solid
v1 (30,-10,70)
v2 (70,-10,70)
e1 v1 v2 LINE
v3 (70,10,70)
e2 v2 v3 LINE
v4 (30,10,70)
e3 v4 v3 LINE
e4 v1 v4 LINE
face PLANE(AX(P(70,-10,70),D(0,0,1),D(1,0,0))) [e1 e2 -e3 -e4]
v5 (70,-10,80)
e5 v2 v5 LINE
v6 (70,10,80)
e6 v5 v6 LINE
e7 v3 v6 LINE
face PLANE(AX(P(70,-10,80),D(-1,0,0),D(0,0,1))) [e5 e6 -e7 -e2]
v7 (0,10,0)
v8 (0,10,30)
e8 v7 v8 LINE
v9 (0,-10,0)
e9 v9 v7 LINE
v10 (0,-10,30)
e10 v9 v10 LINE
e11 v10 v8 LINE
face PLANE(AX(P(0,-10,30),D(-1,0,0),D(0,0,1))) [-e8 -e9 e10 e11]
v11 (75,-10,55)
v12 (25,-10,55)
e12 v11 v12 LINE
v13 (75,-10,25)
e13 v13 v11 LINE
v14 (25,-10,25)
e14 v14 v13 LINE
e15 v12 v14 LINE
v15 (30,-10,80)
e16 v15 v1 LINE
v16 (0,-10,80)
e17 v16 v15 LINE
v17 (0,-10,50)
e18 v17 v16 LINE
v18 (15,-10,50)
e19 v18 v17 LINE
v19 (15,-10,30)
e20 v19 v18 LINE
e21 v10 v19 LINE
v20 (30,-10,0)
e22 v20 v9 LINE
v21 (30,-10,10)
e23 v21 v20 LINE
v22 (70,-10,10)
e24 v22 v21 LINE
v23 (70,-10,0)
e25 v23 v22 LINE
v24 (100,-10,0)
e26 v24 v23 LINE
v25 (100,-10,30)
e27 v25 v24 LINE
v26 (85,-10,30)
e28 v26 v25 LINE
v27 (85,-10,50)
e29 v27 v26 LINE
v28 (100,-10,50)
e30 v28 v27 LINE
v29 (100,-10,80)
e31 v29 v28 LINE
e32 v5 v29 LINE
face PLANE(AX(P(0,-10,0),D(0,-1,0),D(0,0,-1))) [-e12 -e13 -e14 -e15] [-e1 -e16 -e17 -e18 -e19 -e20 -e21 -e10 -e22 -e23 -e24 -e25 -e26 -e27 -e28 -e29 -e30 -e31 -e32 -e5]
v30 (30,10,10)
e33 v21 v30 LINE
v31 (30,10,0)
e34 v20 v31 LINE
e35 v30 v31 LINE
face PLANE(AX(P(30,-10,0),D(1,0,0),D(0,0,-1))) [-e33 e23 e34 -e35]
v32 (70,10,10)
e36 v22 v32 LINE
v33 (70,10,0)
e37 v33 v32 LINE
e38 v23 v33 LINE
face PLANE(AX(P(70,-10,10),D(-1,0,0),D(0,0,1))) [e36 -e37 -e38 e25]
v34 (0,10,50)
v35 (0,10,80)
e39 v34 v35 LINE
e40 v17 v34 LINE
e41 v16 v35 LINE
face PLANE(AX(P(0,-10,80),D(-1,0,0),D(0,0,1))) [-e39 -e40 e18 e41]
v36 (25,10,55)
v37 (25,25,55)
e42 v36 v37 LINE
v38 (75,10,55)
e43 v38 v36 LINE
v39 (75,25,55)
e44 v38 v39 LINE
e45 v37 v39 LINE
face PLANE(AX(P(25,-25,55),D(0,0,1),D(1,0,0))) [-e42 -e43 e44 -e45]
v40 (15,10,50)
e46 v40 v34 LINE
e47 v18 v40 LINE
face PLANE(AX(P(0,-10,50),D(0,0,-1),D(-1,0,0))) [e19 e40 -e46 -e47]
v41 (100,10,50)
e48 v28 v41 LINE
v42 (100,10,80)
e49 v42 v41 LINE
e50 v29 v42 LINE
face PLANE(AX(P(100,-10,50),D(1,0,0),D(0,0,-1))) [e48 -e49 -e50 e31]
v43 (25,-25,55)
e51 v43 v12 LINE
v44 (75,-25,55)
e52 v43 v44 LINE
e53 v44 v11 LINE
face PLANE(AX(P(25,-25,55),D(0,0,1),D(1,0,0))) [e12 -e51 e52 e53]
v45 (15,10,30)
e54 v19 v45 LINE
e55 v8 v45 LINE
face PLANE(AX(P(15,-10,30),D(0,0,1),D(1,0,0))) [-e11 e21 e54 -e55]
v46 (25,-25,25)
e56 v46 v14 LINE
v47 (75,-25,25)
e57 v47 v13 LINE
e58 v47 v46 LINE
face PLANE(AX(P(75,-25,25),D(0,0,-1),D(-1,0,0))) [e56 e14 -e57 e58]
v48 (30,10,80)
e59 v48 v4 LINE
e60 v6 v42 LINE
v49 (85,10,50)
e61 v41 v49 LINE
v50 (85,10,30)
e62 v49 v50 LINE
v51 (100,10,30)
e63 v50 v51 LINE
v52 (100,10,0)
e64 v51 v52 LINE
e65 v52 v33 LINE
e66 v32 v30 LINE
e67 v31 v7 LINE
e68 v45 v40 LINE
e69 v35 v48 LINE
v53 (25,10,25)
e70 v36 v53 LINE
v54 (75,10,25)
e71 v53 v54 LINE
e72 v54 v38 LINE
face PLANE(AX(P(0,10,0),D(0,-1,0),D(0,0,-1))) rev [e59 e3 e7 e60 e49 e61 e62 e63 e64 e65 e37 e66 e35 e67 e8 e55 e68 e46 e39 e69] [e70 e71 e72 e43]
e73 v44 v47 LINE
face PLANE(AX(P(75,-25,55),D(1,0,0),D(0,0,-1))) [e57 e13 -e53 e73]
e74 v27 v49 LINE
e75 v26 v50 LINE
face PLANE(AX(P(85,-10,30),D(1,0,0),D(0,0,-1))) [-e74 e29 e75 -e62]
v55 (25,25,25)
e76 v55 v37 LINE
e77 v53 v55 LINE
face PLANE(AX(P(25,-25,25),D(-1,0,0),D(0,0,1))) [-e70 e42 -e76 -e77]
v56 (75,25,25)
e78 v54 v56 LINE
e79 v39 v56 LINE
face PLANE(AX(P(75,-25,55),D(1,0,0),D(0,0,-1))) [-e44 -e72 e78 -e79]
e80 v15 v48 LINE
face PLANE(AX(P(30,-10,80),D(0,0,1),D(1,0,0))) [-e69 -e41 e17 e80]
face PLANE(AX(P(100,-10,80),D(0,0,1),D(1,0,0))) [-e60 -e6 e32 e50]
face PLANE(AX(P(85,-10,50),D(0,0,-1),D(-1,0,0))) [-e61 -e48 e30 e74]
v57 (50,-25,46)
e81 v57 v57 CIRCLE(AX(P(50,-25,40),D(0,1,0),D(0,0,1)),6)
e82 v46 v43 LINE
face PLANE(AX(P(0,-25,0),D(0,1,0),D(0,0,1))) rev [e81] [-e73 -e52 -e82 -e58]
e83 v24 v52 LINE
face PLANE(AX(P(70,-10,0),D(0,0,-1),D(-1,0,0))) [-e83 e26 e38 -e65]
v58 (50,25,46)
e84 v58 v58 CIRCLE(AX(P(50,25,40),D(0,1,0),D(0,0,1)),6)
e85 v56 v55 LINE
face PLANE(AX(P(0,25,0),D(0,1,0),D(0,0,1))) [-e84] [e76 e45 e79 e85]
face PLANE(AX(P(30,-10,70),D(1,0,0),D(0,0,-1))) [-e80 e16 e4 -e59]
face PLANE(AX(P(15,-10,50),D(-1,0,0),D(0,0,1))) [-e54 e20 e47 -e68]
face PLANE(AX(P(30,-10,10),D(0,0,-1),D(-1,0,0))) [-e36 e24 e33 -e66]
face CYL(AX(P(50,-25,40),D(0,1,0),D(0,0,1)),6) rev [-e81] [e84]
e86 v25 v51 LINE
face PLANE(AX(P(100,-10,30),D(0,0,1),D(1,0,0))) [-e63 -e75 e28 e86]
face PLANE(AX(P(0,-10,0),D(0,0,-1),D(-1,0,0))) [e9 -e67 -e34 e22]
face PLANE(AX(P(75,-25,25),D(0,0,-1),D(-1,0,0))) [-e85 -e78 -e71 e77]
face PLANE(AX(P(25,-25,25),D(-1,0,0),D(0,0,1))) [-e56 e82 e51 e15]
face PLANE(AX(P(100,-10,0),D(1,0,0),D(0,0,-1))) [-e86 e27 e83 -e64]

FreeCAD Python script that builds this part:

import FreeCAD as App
import Part
import Sketcher

V = App.Vector

doc = App.newDocument("Part")
body = doc.addObject("PartDesign::Body", "Body")

# Sketch on XZ plane
sketch1 = doc.addObject("Sketcher::SketchObject", "Sketch")
body.addObject(sketch1)
sketch1.AttachmentSupport = (doc.XZ_Plane, [""])
sketch1.MapMode = "FlatFace"
sketch1.addGeometry([
    Part.LineSegment(V(30, 0, 0), V(0, 0, 0)),  # 0
    Part.LineSegment(V(0, 0, 0), V(0, 30, 0)),  # 1
    Part.LineSegment(V(0, 30, 0), V(15, 30, 0)),  # 2
    Part.LineSegment(V(15, 30, 0), V(15, 50, 0)),  # 3
    Part.LineSegment(V(15, 50, 0), V(0, 50, 0)),  # 4
    Part.LineSegment(V(0, 50, 0), V(0, 80, 0)),  # 5
    Part.LineSegment(V(0, 80, 0), V(30, 80, 0)),  # 6
    Part.LineSegment(V(30, 80, 0), V(30, 70, 0)),  # 7
    Part.LineSegment(V(30, 70, 0), V(70, 70, 0)),  # 8
    Part.LineSegment(V(70, 70, 0), V(70, 80, 0)),  # 9
    Part.LineSegment(V(70, 80, 0), V(100, 80, 0)),  # 10
    Part.LineSegment(V(100, 80, 0), V(100, 50, 0)),  # 11
    Part.LineSegment(V(100, 50, 0), V(85, 50, 0)),  # 12
    Part.LineSegment(V(85, 50, 0), V(85, 30, 0)),  # 13
    Part.LineSegment(V(85, 30, 0), V(100, 30, 0)),  # 14
    Part.LineSegment(V(100, 30, 0), V(100, 0, 0)),  # 15
    Part.LineSegment(V(100, 0, 0), V(70, 0, 0)),  # 16
    Part.LineSegment(V(70, 0, 0), V(70, 10, 0)),  # 17
    Part.LineSegment(V(70, 10, 0), V(30, 10, 0)),  # 18
    Part.LineSegment(V(30, 10, 0), V(30, 0, 0)),  # 19
], False)
sketch1.addConstraint([
    Sketcher.Constraint("Coincident", 0, 2, 1, 1),
    Sketcher.Constraint("Coincident", 1, 2, 2, 1),
    Sketcher.Constraint("Coincident", 2, 2, 3, 1),
    Sketcher.Constraint("Coincident", 3, 2, 4, 1),
    Sketcher.Constraint("Coincident", 4, 2, 5, 1),
    Sketcher.Constraint("Coincident", 5, 2, 6, 1),
    Sketcher.Constraint("Coincident", 6, 2, 7, 1),
    Sketcher.Constraint("Coincident", 7, 2, 8, 1),
    Sketcher.Constraint("Coincident", 8, 2, 9, 1),
    Sketcher.Constraint("Coincident", 9, 2, 10, 1),
    Sketcher.Constraint("Coincident", 10, 2, 11, 1),
    Sketcher.Constraint("Coincident", 11, 2, 12, 1),
    Sketcher.Constraint("Coincident", 12, 2, 13, 1),
    Sketcher.Constraint("Coincident", 13, 2, 14, 1),
    Sketcher.Constraint("Coincident", 14, 2, 15, 1),
    Sketcher.Constraint("Coincident", 15, 2, 16, 1),
    Sketcher.Constraint("Coincident", 16, 2, 17, 1),
    Sketcher.Constraint("Coincident", 17, 2, 18, 1),
    Sketcher.Constraint("Coincident", 18, 2, 19, 1),
    Sketcher.Constraint("Coincident", 19, 2, 0, 1),
    Sketcher.Constraint("Horizontal", 0),
    Sketcher.Constraint("Vertical", 1),
    Sketcher.Constraint("Horizontal", 2),
    Sketcher.Constraint("Vertical", 3),
    Sketcher.Constraint("Horizontal", 4),
    Sketcher.Constraint("Vertical", 5),
    Sketcher.Constraint("Horizontal", 6),
    Sketcher.Constraint("Vertical", 7),
    Sketcher.Constraint("Horizontal", 8),
    Sketcher.Constraint("Vertical", 9),
    Sketcher.Constraint("Horizontal", 10),
    Sketcher.Constraint("Vertical", 11),
    Sketcher.Constraint("Horizontal", 12),
    Sketcher.Constraint("Vertical", 13),
    Sketcher.Constraint("Horizontal", 14),
    Sketcher.Constraint("Vertical", 15),
    Sketcher.Constraint("Horizontal", 16),
    Sketcher.Constraint("Vertical", 17),
    Sketcher.Constraint("Horizontal", 18),
    Sketcher.Constraint("Vertical", 19),
    Sketcher.Constraint("Coincident", 0, 2, -1, 1),
    Sketcher.Constraint("PointOnObject", 4, 2, -2),
    Sketcher.Constraint("PointOnObject", 15, 2, -1),
    Sketcher.Constraint("Horizontal", 6, 2, 9, 2),
    Sketcher.Constraint("Horizontal", 4, 2, 11, 2),
    Sketcher.Constraint("Horizontal", 2, 2, 13, 2),
    Sketcher.Constraint("Vertical", 11, 2, 14, 2),
    Sketcher.Constraint("Vertical", 9, 2, 16, 2),
    Sketcher.Constraint("Vertical", 7, 2, 18, 2),
    Sketcher.Constraint("Equal", 6, 10),
    Sketcher.Constraint("Equal", 4, 12),
    Sketcher.Constraint("Equal", 16, 1),
    Sketcher.Constraint("Equal", 1, 5),
    Sketcher.Constraint("Equal", 9, 17),
    Sketcher.Constraint("DistanceX", 0, 2, 0, 1, 30.0),
    Sketcher.Constraint("DistanceX", 2, 1, 2, 2, 15.0),
    Sketcher.Constraint("DistanceX", 8, 1, 8, 2, 40.0),
    Sketcher.Constraint("DistanceY", 3, 1, 3, 2, 20.0),
    Sketcher.Constraint("DistanceY", 7, 2, 7, 1, 10.0),
])
pad1 = doc.addObject("PartDesign::Pad", "Pad")
body.addObject(pad1)
pad1.Profile = sketch1
pad1.Type = "TwoLengths"
pad1.Length = 10
pad1.Length2 = 10
pad1.Reversed = True

# Sketch on XZ plane
sketch2 = doc.addObject("Sketcher::SketchObject", "Sketch001")
body.addObject(sketch2)
sketch2.AttachmentSupport = (doc.XZ_Plane, [""])
sketch2.MapMode = "FlatFace"
sketch2.addGeometry([
    Part.LineSegment(V(25, 25, 0), V(25, 55, 0)),
    Part.LineSegment(V(25, 55, 0), V(75, 55, 0)),
    Part.LineSegment(V(75, 55, 0), V(75, 25, 0)),
    Part.LineSegment(V(75, 25, 0), V(25, 25, 0)),
], False)
sketch2.addConstraint([
    Sketcher.Constraint("Coincident", 0, 2, 1, 1),
    Sketcher.Constraint("Coincident", 1, 2, 2, 1),
    Sketcher.Constraint("Coincident", 2, 2, 3, 1),
    Sketcher.Constraint("Coincident", 3, 2, 0, 1),
    Sketcher.Constraint("Vertical", 0),
    Sketcher.Constraint("Horizontal", 1),
    Sketcher.Constraint("Vertical", 2),
    Sketcher.Constraint("Horizontal", 3),
    Sketcher.Constraint("DistanceX", 1, 1, 1, 2, 50.0),
    Sketcher.Constraint("DistanceY", 0, 1, 0, 2, 30.0),
    Sketcher.Constraint("DistanceX", -1, 1, 0, 2, 25.0),
    Sketcher.Constraint("DistanceY", -1, 1, 0, 2, 55.0),
])
pad2 = doc.addObject("PartDesign::Pad", "Pad001")
body.addObject(pad2)
pad2.Profile = sketch2
pad2.Type = "TwoLengths"
pad2.Length = 25
pad2.Length2 = 25
pad2.Reversed = True

# Sketch on XZ plane
sketch3 = doc.addObject("Sketcher::SketchObject", "Sketch002")
body.addObject(sketch3)
sketch3.AttachmentSupport = (doc.XZ_Plane, [""])
sketch3.MapMode = "FlatFace"
sketch3.AttachmentOffset = App.Placement(V(0, 0, -25), App.Rotation())
sketch3.addGeometry(Part.Circle(V(50, 40, 0), V(0, 0, 1), 6), False)
sketch3.addConstraint([
    Sketcher.Constraint("Diameter", 0, 12.0),
    Sketcher.Constraint("DistanceX", -1, 1, 0, 3, 50.0),
    Sketcher.Constraint("DistanceY", -1, 1, 0, 3, 40.0),
])
pocket1 = doc.addObject("PartDesign::Pocket", "Pocket")
body.addObject(pocket1)
pocket1.Profile = sketch3
pocket1.Type = "ThroughAll"
pocket1.Reversed = True

doc.recompute()
